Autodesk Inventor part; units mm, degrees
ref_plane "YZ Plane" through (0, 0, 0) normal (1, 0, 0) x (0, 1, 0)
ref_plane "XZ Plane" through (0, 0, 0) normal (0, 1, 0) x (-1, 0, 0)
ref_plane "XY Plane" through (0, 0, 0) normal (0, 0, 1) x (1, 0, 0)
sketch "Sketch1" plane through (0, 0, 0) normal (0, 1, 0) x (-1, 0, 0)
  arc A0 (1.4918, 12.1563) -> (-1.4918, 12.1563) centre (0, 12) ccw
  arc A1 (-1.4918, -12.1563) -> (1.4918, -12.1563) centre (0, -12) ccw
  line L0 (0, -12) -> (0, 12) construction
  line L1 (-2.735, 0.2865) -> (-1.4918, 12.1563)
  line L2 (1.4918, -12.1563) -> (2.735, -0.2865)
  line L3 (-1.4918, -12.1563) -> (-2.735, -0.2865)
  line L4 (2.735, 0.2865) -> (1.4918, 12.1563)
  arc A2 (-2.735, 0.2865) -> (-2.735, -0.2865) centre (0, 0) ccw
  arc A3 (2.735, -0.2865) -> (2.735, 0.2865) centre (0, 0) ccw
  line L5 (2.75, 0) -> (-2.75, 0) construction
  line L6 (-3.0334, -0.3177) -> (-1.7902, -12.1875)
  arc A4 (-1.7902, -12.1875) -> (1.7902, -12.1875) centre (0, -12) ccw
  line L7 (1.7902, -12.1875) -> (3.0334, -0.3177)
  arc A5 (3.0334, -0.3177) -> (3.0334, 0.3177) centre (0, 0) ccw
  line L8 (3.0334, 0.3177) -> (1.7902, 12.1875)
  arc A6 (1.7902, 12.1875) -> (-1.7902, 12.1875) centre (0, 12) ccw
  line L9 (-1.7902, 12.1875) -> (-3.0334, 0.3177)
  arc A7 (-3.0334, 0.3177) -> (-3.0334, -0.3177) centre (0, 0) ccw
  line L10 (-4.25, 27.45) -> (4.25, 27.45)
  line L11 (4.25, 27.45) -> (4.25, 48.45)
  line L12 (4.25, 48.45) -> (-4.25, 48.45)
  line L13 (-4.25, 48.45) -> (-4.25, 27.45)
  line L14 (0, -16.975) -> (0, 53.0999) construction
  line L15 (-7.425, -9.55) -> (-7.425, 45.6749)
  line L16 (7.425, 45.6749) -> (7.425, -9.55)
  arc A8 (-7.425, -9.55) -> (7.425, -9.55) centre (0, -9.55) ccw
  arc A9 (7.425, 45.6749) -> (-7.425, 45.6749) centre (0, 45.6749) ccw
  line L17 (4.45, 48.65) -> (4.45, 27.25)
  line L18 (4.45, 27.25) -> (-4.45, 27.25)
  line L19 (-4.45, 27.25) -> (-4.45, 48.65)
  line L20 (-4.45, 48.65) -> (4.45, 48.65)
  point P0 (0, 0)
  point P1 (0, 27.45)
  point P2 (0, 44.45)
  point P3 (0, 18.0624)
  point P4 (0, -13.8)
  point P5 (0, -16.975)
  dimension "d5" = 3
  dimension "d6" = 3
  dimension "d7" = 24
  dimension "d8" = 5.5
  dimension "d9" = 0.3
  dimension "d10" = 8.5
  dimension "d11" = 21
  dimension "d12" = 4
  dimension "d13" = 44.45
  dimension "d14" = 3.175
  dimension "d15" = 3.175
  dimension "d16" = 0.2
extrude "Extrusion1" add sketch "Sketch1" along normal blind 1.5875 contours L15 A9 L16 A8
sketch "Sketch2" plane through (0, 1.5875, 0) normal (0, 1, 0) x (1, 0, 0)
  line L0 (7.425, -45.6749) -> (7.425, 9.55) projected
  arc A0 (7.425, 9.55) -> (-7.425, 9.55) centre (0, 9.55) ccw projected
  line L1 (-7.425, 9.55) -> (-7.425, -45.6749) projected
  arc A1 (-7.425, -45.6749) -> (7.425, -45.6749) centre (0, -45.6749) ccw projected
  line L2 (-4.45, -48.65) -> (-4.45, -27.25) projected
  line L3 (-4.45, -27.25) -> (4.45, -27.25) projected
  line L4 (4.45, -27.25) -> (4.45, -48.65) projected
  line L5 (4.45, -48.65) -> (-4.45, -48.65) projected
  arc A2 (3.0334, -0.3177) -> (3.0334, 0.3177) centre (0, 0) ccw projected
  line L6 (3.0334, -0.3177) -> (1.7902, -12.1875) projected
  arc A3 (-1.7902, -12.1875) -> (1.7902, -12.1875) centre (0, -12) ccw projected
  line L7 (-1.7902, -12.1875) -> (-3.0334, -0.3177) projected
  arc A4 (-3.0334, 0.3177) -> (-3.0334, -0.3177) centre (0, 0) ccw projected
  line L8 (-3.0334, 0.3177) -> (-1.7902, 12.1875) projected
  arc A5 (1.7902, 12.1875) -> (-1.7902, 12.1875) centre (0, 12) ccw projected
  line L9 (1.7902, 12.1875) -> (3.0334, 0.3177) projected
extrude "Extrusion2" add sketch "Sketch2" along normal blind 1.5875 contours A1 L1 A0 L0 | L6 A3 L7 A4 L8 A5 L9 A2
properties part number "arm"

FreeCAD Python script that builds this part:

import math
import FreeCAD as App
import Part
import Sketcher
Q = App.Units.Quantity


def add_polygon(sketch, points):
    """Adds a closed chain of lines whose ends are joined by coincident constraints."""
    first, n = sketch.GeometryCount, len(points)
    for a, b in zip(points, points[1:] + points[:1]):
        sketch.addGeometry(Part.LineSegment(App.Vector(*a, 0), App.Vector(*b, 0)), False)
    for i in range(n):
        sketch.addConstraint(Sketcher.Constraint("Coincident", first + i, 2, first + (i + 1) % n, 1))

doc = App.newDocument("Part")
body = doc.addObject("PartDesign::Body", "Body")

# Sketch on XZ plane
sketch1 = body.newObject("Sketcher::SketchObject", "Sketch")
sketch1.AttachmentSupport = (doc.getObject("XZ_Plane"), [""])
sketch1.MapMode = "FlatFace"
sketch1.addGeometry(Part.LineSegment(App.Vector(7.4, 45.7, 0), App.Vector(7.4, -9.6, 0)), False)  # 0
sketch1.addGeometry(Part.ArcOfCircle(Part.Circle(App.Vector(0, -9.6, 0), App.Vector(0, 0, 1), 7.4), math.radians(180), math.radians(360)), False)  # 1
sketch1.addGeometry(Part.LineSegment(App.Vector(-7.4, -9.6, 0), App.Vector(-7.4, 45.7, 0)), False)  # 2
sketch1.addGeometry(Part.ArcOfCircle(Part.Circle(App.Vector(0, 45.7, 0), App.Vector(0, 0, 1), 7.4), math.radians(0), math.radians(180)), False)  # 3
sketch1.addGeometry(Part.LineSegment(App.Vector(1.8, -12.2, 0), App.Vector(3, -0.3, 0)), False)  # 4
sketch1.addGeometry(Part.ArcOfCircle(Part.Circle(App.Vector(0, 0, 0), App.Vector(0, 0, 1), 3), math.radians(-5.98), math.radians(5.98)), False)  # 5
sketch1.addGeometry(Part.LineSegment(App.Vector(3, 0.3, 0), App.Vector(1.8, 12.2, 0)), False)  # 6
sketch1.addGeometry(Part.ArcOfCircle(Part.Circle(App.Vector(0, 12, 0), App.Vector(0, 0, 1), 1.8), math.radians(6), math.radians(174)), False)  # 7
sketch1.addGeometry(Part.LineSegment(App.Vector(-1.8, 12.2, 0), App.Vector(-3, 0.3, 0)), False)  # 8
sketch1.addGeometry(Part.ArcOfCircle(Part.Circle(App.Vector(0, 0, 0), App.Vector(0, 0, 1), 3), math.radians(174.02), math.radians(185.98)), False)  # 9
sketch1.addGeometry(Part.LineSegment(App.Vector(-3, -0.3, 0), App.Vector(-1.8, -12.2, 0)), False)  # 10
sketch1.addGeometry(Part.ArcOfCircle(Part.Circle(App.Vector(0, -12, 0), App.Vector(0, 0, 1), 1.8), math.radians(-174), math.radians(-6)), False)  # 11
add_polygon(sketch1, [(4.5, 48.6), (-4.5, 48.6), (-4.5, 27.2), (4.5, 27.2)])  # lines 12-15
sketch1.addConstraint([
    Sketcher.Constraint("Tangent", 0, 2, 1, 2),
    Sketcher.Constraint("Tangent", 1, 1, 2, 1),
    Sketcher.Constraint("Tangent", 2, 2, 3, 2),
    Sketcher.Constraint("Tangent", 3, 1, 0, 1),
    Sketcher.Constraint("Tangent", 4, 2, 5, 1),
    Sketcher.Constraint("Tangent", 5, 2, 6, 1),
    Sketcher.Constraint("Tangent", 6, 2, 7, 1),
    Sketcher.Constraint("Tangent", 7, 2, 8, 1),
    Sketcher.Constraint("Tangent", 8, 2, 9, 1),
    Sketcher.Constraint("Tangent", 9, 2, 10, 1),
    Sketcher.Constraint("Tangent", 10, 2, 11, 1),
    Sketcher.Constraint("Tangent", 11, 2, 4, 1),
    Sketcher.Constraint("Vertical", 0),
    Sketcher.Constraint("Vertical", 2),
    Sketcher.Constraint("Horizontal", 12),
    Sketcher.Constraint("Vertical", 13),
    Sketcher.Constraint("Horizontal", 14),
    Sketcher.Constraint("Vertical", 15),
    Sketcher.Constraint("Coincident", 5, 3, -1, 1),
    Sketcher.Constraint("Coincident", 9, 3, -1, 1),
    Sketcher.Constraint("Equal", 5, 9),
    Sketcher.Constraint("Equal", 7, 11),
    Sketcher.Constraint("Symmetric", 7, 3, 11, 3, -1, 1),
    Sketcher.Constraint("PointOnObject", 1, 3, -2),
    Sketcher.Constraint("PointOnObject", 7, 3, -2),
    Sketcher.Constraint("DistanceY", 11, 3, 7, 3, Q("24 mm")),
    Sketcher.Constraint("Radius", 7, Q("1.8 mm")),
    Sketcher.Constraint("Radius", 5, Q("3.05 mm")),
    Sketcher.Constraint("DistanceX", 12, 2, 12, 1, Q("8.9 mm")),
    Sketcher.Constraint("DistanceY", 13, 2, 13, 1, Q("21.4 mm")),
    Sketcher.Constraint("Radius", 1, Q("7.425 mm")),
    Sketcher.Constraint("DistanceY", 0, 2, 0, 1, Q("55.225 mm")),
    Sketcher.Constraint("DistanceY", 1, 3, -1, 1, Q("9.55 mm")),
    Sketcher.Constraint("DistanceX", 12, 2, -1, 1, Q("4.45 mm")),
    Sketcher.Constraint("DistanceY", -1, 1, 12, 2, Q("48.65 mm")),
])
pad1 = body.newObject("PartDesign::Pad", "Pad")
pad1.Profile = sketch1
pad1.Length = 1.5875
pad1.Reversed = True

# Sketch on XZ plane
sketch2 = body.newObject("Sketcher::SketchObject", "Sketch001")
sketch2.AttachmentSupport = (doc.getObject("XZ_Plane"), [""])
sketch2.MapMode = "FlatFace"
sketch2.AttachmentOffset = App.Placement(App.Vector(0, 0, -1.5875), App.Rotation())
sketch2.addGeometry(Part.ArcOfCircle(Part.Circle(App.Vector(0, 46, 0), App.Vector(0, 0, 1), 7), math.radians(0), math.radians(180)), False)  # 0
sketch2.addGeometry(Part.LineSegment(App.Vector(7, 46, 0), App.Vector(7, -10, 0)), False)  # 1
sketch2.addGeometry(Part.ArcOfCircle(Part.Circle(App.Vector(0, -10, 0), App.Vector(0, 0, 1), 7), math.radians(180), math.radians(360)), False)  # 2
sketch2.addGeometry(Part.LineSegment(App.Vector(-7, -10, 0), App.Vector(-7, 46, 0)), False)  # 3
add_polygon(sketch2, [(4, 49), (-4, 49), (-4, 27), (4, 27)])  # lines 4-7
sketch2.addConstraint([
    Sketcher.Constraint("Tangent", 0, 1, 1, 1),
    Sketcher.Constraint("Tangent", 1, 2, 2, 2),
    Sketcher.Constraint("Tangent", 2, 1, 3, 1),
    Sketcher.Constraint("Tangent", 3, 2, 0, 2),
    Sketcher.Constraint("Vertical", 1),
    Sketcher.Constraint("Vertical", 3),
    Sketcher.Constraint("Horizontal", 4),
    Sketcher.Constraint("Vertical", 5),
    Sketcher.Constraint("Horizontal", 6),
    Sketcher.Constraint("Vertical", 7),
    Sketcher.Constraint("PointOnObject", 0, 3, -2),
    Sketcher.Constraint("DistanceX", 4, 2, 4, 1, Q("8.9 mm")),
    Sketcher.Constraint("DistanceY", 5, 2, 5, 1, Q("21.4 mm")),
    Sketcher.Constraint("Radius", 0, Q("7.425 mm")),
    Sketcher.Constraint("DistanceY", 2, 1, 4, 2, Q("58.2 mm")),
    Sketcher.Constraint("DistanceY", 1, 2, 1, 1, Q("55.225 mm")),
    Sketcher.Constraint("DistanceY", 2, 3, -1, 1, Q("9.55 mm")),
    Sketcher.Constraint("DistanceX", 4, 2, -1, 1, Q("4.45 mm")),
])
pad2 = body.newObject("PartDesign::Pad", "Pad001")
pad2.Profile = sketch2
pad2.Length = 1.5875
pad2.Reversed = True

doc.recompute()
